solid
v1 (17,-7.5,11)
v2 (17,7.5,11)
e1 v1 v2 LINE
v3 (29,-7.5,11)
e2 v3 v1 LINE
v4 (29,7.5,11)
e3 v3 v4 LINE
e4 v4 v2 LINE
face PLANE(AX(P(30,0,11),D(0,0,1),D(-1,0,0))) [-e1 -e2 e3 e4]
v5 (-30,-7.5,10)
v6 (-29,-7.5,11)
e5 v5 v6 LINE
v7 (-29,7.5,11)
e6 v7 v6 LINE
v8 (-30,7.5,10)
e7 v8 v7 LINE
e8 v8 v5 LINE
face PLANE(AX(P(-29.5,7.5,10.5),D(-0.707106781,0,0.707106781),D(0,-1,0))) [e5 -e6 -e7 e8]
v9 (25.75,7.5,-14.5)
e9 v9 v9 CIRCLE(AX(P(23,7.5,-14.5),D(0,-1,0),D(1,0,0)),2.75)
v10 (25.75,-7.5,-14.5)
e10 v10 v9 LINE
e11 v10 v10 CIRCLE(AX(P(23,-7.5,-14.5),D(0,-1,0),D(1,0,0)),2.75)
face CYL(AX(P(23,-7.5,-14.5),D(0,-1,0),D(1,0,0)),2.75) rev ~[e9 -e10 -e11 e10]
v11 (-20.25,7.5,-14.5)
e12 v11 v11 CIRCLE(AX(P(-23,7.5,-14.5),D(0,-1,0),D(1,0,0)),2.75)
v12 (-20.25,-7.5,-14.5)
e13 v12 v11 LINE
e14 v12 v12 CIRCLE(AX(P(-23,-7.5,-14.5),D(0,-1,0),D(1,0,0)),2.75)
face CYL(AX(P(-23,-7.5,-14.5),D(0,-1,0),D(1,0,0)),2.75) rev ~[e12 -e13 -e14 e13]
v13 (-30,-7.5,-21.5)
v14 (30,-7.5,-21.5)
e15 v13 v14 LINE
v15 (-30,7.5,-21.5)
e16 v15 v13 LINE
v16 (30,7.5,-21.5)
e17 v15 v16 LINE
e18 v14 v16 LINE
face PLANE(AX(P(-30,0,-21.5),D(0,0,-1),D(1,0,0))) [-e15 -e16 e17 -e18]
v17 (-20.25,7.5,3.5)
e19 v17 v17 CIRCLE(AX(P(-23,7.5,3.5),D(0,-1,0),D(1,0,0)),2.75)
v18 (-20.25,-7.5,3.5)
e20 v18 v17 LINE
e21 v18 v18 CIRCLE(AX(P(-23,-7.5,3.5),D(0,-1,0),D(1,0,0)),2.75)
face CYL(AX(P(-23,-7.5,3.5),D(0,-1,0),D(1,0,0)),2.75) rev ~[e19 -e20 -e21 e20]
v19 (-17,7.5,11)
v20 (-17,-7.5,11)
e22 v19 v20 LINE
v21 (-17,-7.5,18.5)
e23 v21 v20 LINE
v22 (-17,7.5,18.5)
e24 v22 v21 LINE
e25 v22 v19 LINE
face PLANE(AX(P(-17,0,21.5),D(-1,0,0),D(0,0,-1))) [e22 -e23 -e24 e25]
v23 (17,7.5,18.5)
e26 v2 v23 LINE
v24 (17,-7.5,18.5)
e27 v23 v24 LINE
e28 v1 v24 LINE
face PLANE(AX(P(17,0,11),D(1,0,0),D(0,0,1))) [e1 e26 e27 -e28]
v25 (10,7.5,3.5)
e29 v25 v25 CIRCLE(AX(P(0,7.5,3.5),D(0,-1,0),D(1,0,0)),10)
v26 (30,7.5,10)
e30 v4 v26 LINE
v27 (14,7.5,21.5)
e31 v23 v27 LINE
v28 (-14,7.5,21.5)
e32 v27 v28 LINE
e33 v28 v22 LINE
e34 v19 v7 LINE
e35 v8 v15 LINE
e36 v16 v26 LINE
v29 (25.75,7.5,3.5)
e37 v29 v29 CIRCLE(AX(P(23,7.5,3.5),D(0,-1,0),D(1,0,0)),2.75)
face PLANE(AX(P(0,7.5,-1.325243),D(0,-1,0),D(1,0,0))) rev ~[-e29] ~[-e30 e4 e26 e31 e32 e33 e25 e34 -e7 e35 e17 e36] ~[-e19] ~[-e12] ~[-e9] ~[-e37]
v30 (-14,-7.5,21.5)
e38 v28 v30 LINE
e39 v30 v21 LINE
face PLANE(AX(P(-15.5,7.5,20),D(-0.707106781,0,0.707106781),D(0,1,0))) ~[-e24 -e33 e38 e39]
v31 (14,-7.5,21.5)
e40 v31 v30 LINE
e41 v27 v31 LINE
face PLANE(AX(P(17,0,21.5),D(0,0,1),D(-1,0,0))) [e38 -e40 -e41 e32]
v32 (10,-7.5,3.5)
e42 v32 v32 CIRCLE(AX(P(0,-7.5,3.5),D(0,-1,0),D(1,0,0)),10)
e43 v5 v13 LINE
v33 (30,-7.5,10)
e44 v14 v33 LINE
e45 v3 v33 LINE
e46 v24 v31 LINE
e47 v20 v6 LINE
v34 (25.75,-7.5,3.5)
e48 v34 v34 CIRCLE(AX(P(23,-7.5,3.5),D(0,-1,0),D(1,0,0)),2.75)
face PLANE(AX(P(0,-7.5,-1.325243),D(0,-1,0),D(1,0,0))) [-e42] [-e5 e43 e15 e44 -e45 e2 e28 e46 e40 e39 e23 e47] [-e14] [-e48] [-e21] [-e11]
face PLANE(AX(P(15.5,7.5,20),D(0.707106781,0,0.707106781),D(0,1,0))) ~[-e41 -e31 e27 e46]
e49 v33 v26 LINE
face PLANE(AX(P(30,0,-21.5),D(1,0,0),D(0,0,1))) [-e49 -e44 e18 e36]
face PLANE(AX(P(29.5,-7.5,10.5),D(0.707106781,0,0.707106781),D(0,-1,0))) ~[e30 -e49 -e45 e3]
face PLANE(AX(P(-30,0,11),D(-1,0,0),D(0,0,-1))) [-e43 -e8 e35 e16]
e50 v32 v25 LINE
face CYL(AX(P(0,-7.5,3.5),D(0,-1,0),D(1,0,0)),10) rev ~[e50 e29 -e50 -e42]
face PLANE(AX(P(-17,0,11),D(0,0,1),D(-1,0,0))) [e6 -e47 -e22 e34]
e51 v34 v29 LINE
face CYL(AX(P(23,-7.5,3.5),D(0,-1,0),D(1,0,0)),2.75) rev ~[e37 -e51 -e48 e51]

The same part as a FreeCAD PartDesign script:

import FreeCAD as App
import Part
import Sketcher
from FreeCAD import Vector
Q = App.Units.Quantity


def edges_at(feature, points):
    """Names of the edges that pass closest to the given points."""
    edges = feature.Shape.Edges
    near = lambda p: min(range(len(edges)), key=lambda i: edges[i].distToShape(Part.Vertex(*p))[0])
    return sorted({f"Edge{near(p) + 1}" for p in points})


def add_polygon(sketch, points):
    """Adds a closed chain of lines whose ends are joined by coincident constraints."""
    first, n = sketch.GeometryCount, len(points)
    for a, b in zip(points, points[1:] + points[:1]):
        sketch.addGeometry(Part.LineSegment(App.Vector(*a, 0), App.Vector(*b, 0)), False)
    for i in range(n):
        sketch.addConstraint(Sketcher.Constraint("Coincident", first + i, 2, first + (i + 1) % n, 1))

doc = App.newDocument("Part")
params = doc.addObject("Spreadsheet::Sheet", "Params")
for row, (alias, value) in enumerate([
    ("sketch1_width", "34 mm"),
    ("sketch1_width2", "13 mm"),
    ("sketch1_height", "10.5 mm"),
    ("sketch1_height2", "32.5 mm"),
    ("pad1_length", "15 mm"),
    ("sketch2_diameter", "20 mm"),
    ("sketch2_diameter2", "5.5 mm"),
    ("pocket1_length", "15 mm"),
    ("chamfer_size", "3 mm"),
    ("chamfer2_size", "1 mm"),
], start=1):
    params.set(f"A{row}", alias)
    params.set(f"B{row}", "=" + value)
    params.setAlias(f"B{row}", alias)

body = doc.addObject("PartDesign::Body", "Body")

sketch1 = body.newObject("Sketcher::SketchObject", "Sketch")
sketch1.AttachmentSupport = (doc.getObject("XZ_Plane"), [""])
sketch1.MapMode = "FlatFace"
add_polygon(sketch1, [(17, 11), (17, 22), (-17, 22), (-17, 11), (-30, 11), (-30, -22), (30, -22), (30, 11)])
sketch1.addConstraint(Sketcher.Constraint("Vertical", 0))
sketch1.addConstraint(Sketcher.Constraint("Horizontal", 1))
sketch1.addConstraint(Sketcher.Constraint("Vertical", 2))
sketch1.addConstraint(Sketcher.Constraint("Horizontal", 3))
sketch1.addConstraint(Sketcher.Constraint("Vertical", 4))
sketch1.addConstraint(Sketcher.Constraint("Horizontal", 5))
sketch1.addConstraint(Sketcher.Constraint("Vertical", 6))
sketch1.addConstraint(Sketcher.Constraint("Horizontal", 7))
sketch1.addConstraint(Sketcher.Constraint("Symmetric", 3, 2, 6, 2, -2))
sketch1.addConstraint(Sketcher.Constraint("Equal", 3, 7))
sketch1.addConstraint(Sketcher.Constraint("DistanceX", 1, 2, 1, 1, Q("34 mm")))
sketch1.addConstraint(Sketcher.Constraint("DistanceX", 3, 2, 3, 1, Q("13 mm")))
sketch1.addConstraint(Sketcher.Constraint("DistanceY", 0, 1, 0, 2, Q("10.5 mm")))
sketch1.addConstraint(Sketcher.Constraint("DistanceY", 4, 2, 4, 1, Q("32.5 mm")))
sketch1.addConstraint(Sketcher.Constraint("DistanceY", -1, 1, 2, 2, Q("11 mm")))
sketch1.setExpression("Constraints[18]", "Params.sketch1_width")
sketch1.setExpression("Constraints[19]", "Params.sketch1_width2")
sketch1.setExpression("Constraints[20]", "Params.sketch1_height")
sketch1.setExpression("Constraints[21]", "Params.sketch1_height2")
pad1 = body.newObject("PartDesign::Pad", "Pad")
pad1.Profile = sketch1
pad1.setExpression("Length", "Params.pad1_length")
pad1.Midplane = True

sketch2 = body.newObject("Sketcher::SketchObject", "Sketch001")
sketch2.AttachmentSupport = (doc.getObject("XZ_Plane"), [""])
sketch2.MapMode = "FlatFace"
sketch2.AttachmentOffset = App.Placement(Vector(0, 0, 7.5), App.Rotation())
sketch2.addGeometry(Part.Circle(Vector(0, 3.5, 0), Vector(0, 0, 1), 10), False)
sketch2.addGeometry(Part.Circle(Vector(-23, 3.5, 0), Vector(0, 0, 1), 2.8), False)
sketch2.addGeometry(Part.Circle(Vector(23, 3.5, 0), Vector(0, 0, 1), 2.8), False)
sketch2.addGeometry(Part.Circle(Vector(-23, -14.5, 0), Vector(0, 0, 1), 2.8), False)
sketch2.addGeometry(Part.Circle(Vector(23, -14.5, 0), Vector(0, 0, 1), 2.8), False)
sketch2.addConstraint(Sketcher.Constraint("Equal", 1, 2))
sketch2.addConstraint(Sketcher.Constraint("Equal", 2, 3))
sketch2.addConstraint(Sketcher.Constraint("Equal", 3, 4))
sketch2.addConstraint(Sketcher.Constraint("Symmetric", 1, 3, 2, 3, -2))
sketch2.addConstraint(Sketcher.Constraint("Symmetric", 3, 3, 4, 3, -2))
sketch2.addConstraint(Sketcher.Constraint("PointOnObject", 0, 3, -2))
sketch2.addConstraint(Sketcher.Constraint("Horizontal", 0, 3, 1, 3))
sketch2.addConstraint(Sketcher.Constraint("Vertical", 1, 3, 3, 3))
sketch2.addConstraint(Sketcher.Constraint("Diameter", 0, Q("20 mm")))
sketch2.addConstraint(Sketcher.Constraint("Diameter", 1, Q("5.5 mm")))
sketch2.addConstraint(Sketcher.Constraint("DistanceX", 1, 3, -1, 1, Q("23 mm")))
sketch2.addConstraint(Sketcher.Constraint("DistanceY", 3, 3, 1, 3, Q("18 mm")))
sketch2.addConstraint(Sketcher.Constraint("DistanceY", -1, 1, 0, 3, Q("3.5 mm")))
sketch2.setExpression("Constraints[8]", "Params.sketch2_diameter")
sketch2.setExpression("Constraints[9]", "Params.sketch2_diameter2")
pocket1 = body.newObject("PartDesign::Pocket", "Pocket")
pocket1.Profile = sketch2
pocket1.setExpression("Length", "Params.pocket1_length")
doc.recompute()

chamfer = body.newObject("PartDesign::Chamfer", "Chamfer")
chamfer.Base = (pocket1, edges_at(pocket1, [(17, 0, 21.5), (-17, 0, 21.5)]))
chamfer.setExpression("Size", "Params.chamfer_size")
doc.recompute()

chamfer2 = body.newObject("PartDesign::Chamfer", "Chamfer001")
chamfer2.Base = (chamfer, edges_at(chamfer, [(-30, 0, 11), (30, 0, 11)]))
chamfer2.setExpression("Size", "Params.chamfer2_size")

doc.recompute()
